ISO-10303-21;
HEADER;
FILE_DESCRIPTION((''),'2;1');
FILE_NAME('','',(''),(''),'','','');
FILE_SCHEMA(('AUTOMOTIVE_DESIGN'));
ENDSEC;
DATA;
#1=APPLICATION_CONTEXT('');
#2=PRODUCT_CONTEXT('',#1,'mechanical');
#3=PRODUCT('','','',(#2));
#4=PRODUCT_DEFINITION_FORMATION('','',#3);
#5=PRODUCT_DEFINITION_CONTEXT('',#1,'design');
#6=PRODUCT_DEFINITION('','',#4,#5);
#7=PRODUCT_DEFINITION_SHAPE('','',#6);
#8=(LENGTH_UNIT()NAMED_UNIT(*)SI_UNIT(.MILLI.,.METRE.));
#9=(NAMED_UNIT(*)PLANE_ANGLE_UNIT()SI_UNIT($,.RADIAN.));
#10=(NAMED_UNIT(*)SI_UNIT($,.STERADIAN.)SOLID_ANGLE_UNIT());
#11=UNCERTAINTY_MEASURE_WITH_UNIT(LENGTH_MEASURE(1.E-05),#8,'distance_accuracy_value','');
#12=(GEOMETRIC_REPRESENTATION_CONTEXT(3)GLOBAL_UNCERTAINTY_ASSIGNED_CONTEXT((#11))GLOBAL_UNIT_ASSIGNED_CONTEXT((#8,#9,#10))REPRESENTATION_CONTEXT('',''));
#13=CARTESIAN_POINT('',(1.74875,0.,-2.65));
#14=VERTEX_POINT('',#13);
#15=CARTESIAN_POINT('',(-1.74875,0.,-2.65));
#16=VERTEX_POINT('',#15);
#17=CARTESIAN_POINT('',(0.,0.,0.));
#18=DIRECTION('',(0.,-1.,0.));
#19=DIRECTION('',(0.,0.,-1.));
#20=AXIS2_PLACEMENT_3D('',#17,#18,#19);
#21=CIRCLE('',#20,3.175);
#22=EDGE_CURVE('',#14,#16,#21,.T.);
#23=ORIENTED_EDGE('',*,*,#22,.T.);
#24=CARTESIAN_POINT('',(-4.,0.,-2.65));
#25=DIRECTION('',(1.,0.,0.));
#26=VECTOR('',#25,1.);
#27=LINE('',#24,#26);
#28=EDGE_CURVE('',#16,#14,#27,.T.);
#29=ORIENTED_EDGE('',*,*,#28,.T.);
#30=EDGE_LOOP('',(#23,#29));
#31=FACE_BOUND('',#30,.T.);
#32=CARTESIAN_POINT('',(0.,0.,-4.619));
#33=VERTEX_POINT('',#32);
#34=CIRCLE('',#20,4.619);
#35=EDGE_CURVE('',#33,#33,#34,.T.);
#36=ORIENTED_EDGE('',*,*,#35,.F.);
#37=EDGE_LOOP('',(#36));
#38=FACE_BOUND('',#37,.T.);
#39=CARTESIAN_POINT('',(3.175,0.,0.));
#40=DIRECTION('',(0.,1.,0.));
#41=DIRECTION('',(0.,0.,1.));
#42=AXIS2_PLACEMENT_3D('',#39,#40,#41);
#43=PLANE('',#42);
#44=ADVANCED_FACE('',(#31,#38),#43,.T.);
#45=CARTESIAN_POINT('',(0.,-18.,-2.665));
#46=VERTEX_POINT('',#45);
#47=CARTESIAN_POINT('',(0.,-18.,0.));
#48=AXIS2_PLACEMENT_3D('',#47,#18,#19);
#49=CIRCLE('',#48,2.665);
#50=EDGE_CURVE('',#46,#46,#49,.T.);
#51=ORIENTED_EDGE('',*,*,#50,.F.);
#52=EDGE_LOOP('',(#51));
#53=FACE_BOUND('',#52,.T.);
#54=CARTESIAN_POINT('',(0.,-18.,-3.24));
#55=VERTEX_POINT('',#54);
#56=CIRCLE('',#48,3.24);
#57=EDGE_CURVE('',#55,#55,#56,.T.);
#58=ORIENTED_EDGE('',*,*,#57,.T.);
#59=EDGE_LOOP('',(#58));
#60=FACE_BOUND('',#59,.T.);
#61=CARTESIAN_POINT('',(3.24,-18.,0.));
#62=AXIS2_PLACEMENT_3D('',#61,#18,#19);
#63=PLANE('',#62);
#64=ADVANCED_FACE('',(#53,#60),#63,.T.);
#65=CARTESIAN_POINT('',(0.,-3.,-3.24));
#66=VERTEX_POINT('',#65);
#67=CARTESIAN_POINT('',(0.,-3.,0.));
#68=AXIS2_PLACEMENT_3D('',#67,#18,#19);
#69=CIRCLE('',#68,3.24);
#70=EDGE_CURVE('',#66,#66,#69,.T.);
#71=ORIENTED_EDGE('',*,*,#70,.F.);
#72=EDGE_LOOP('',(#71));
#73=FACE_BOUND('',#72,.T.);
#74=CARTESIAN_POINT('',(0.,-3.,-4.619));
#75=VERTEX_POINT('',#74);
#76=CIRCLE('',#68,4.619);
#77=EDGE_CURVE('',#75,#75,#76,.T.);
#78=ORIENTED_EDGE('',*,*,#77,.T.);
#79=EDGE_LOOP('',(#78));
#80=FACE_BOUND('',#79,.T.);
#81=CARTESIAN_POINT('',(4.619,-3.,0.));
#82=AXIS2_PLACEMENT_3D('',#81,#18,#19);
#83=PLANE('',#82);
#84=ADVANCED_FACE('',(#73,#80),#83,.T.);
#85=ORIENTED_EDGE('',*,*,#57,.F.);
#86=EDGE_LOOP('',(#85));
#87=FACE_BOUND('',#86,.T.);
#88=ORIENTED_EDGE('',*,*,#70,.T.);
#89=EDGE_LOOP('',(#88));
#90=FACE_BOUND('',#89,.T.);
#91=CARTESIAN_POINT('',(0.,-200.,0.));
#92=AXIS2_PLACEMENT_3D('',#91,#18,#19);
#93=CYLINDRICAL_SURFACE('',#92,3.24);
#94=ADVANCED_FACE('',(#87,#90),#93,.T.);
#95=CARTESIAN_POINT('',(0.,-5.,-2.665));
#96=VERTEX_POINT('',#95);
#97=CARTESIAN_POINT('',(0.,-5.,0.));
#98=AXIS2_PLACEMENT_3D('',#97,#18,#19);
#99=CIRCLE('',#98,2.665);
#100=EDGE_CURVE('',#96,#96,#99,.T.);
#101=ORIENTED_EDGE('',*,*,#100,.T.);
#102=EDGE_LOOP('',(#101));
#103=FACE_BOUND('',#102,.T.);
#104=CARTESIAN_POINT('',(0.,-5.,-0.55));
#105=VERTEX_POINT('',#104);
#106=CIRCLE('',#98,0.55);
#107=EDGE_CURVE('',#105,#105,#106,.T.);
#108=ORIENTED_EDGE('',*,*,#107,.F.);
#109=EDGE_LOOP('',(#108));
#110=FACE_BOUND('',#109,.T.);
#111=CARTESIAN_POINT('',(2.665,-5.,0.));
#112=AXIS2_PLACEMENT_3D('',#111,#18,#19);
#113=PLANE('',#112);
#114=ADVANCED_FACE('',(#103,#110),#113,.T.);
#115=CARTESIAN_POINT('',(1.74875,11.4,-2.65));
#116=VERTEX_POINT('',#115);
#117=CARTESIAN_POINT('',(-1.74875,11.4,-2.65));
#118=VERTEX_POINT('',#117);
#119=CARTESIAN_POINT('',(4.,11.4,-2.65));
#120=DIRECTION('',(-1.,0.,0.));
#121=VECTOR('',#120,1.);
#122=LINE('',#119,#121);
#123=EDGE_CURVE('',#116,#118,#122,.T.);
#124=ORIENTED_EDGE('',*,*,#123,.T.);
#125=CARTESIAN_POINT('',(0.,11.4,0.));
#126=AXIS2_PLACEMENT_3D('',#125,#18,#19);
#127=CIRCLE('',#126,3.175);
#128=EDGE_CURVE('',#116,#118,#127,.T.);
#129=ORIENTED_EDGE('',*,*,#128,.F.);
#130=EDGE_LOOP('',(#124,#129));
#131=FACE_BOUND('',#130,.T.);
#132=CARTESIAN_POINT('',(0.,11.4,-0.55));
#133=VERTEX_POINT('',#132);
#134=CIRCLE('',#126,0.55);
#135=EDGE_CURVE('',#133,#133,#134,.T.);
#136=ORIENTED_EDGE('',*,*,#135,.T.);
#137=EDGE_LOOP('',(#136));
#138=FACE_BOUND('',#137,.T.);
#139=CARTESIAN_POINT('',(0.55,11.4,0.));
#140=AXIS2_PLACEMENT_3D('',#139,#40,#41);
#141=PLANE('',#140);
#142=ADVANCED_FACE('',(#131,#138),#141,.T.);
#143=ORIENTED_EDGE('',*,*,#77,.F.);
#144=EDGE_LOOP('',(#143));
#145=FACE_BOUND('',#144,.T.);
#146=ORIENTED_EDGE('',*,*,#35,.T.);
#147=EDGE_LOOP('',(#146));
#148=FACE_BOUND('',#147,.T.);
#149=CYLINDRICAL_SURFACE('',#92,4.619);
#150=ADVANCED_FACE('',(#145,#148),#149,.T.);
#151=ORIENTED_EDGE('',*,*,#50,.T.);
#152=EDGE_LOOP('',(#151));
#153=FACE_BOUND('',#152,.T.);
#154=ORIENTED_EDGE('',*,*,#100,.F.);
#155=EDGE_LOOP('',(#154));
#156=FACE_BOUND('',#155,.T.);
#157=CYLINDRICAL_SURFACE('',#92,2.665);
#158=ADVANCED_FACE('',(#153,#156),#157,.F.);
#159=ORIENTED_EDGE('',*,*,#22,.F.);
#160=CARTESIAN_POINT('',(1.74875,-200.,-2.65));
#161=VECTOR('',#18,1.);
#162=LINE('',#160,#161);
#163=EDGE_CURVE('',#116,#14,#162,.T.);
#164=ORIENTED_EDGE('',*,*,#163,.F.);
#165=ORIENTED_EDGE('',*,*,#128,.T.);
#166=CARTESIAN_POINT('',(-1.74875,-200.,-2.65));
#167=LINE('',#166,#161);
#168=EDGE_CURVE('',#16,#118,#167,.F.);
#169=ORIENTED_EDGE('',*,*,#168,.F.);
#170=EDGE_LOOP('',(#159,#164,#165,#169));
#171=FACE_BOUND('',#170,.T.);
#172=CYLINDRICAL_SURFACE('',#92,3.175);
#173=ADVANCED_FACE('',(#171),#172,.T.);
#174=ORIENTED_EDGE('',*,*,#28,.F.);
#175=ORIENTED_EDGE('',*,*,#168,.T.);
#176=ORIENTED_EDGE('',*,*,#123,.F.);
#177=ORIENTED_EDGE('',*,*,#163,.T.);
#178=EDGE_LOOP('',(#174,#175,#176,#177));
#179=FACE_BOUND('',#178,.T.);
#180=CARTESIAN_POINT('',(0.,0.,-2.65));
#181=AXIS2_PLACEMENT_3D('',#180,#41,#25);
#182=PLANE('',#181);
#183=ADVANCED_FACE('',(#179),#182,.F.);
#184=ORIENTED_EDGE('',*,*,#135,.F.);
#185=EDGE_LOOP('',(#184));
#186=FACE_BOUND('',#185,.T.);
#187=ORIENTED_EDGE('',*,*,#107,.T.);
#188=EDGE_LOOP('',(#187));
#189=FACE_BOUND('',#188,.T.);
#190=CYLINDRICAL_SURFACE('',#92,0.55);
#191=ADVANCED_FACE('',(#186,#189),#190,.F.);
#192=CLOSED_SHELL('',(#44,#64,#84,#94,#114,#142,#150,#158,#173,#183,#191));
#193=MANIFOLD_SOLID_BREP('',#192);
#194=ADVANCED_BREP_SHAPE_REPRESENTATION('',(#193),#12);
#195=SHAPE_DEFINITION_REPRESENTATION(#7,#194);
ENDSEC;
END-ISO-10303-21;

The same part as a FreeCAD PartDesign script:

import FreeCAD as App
import Part
import Sketcher
Q = App.Units.Quantity


def add_polygon(sketch, points):
    """Adds a closed chain of lines whose ends are joined by coincident constraints."""
    first, n = sketch.GeometryCount, len(points)
    for a, b in zip(points, points[1:] + points[:1]):
        sketch.addGeometry(Part.LineSegment(App.Vector(*a, 0), App.Vector(*b, 0)), False)
    for i in range(n):
        sketch.addConstraint(Sketcher.Constraint("Coincident", first + i, 2, first + (i + 1) % n, 1))

doc = App.newDocument("Part")
body = doc.addObject("PartDesign::Body", "Body")

sketch1 = doc.addObject("Sketcher::SketchObject", "Sketch")
body.addObject(sketch1)
sketch1.AttachmentSupport = (doc.XY_Plane, [""])
sketch1.MapMode = "FlatFace"
add_polygon(sketch1, [(2.665, -5), (2.665, -18), (3.24, -18), (3.24, -3), (4.619, -3), (4.619, 0), (3.175, 0), (3.175, 11.4), (0.55, 11.4), (0.55, -5)])
sketch1.addConstraint([
    Sketcher.Constraint("Vertical", 0),
    Sketcher.Constraint("Horizontal", 1),
    Sketcher.Constraint("Vertical", 2),
    Sketcher.Constraint("Horizontal", 3),
    Sketcher.Constraint("Vertical", 4),
    Sketcher.Constraint("Horizontal", 5),
    Sketcher.Constraint("Vertical", 6),
    Sketcher.Constraint("Horizontal", 7),
    Sketcher.Constraint("Vertical", 8),
    Sketcher.Constraint("Horizontal", 9),
    Sketcher.Constraint("PointOnObject", 4, 2, -1),
    Sketcher.Constraint("DistanceY", 0, 2, 0, 1, Q("13 mm")),
    Sketcher.Constraint("DistanceY", 2, 1, 2, 2, Q("15 mm")),
    Sketcher.Constraint("DistanceY", 4, 1, 4, 2, Q("3 mm")),
    Sketcher.Constraint("DistanceY", 6, 1, 6, 2, Q("11.4 mm")),
    Sketcher.Constraint("DistanceX", 1, 1, 1, 2, Q("0.575 mm")),
    Sketcher.Constraint("DistanceX", 3, 1, 3, 2, Q("1.379 mm")),
    Sketcher.Constraint("DistanceX", 5, 2, 5, 1, Q("1.444 mm")),
    Sketcher.Constraint("DistanceX", 7, 2, 7, 1, Q("2.625 mm")),
    Sketcher.Constraint("DistanceX", -1, 1, 1, 2, Q("3.24 mm")),
])
revolution = doc.addObject("PartDesign::Revolution", "Revolution")
body.addObject(revolution)
revolution.Profile = sketch1
revolution.ReferenceAxis = (sketch1, ["V_Axis"])
revolution.Angle = 360

sketch2 = doc.addObject("Sketcher::SketchObject", "Sketch001")
body.addObject(sketch2)
sketch2.AttachmentSupport = (doc.XY_Plane, [""])
sketch2.MapMode = "FlatFace"
sketch2.AttachmentOffset = App.Placement(App.Vector(0, 0, -2.65), App.Rotation())
add_polygon(sketch2, [(-4, 11.4), (-4, 0), (4, 0), (4, 11.4)])
sketch2.addConstraint([
    Sketcher.Constraint("Vertical", 0),
    Sketcher.Constraint("Horizontal", 1),
    Sketcher.Constraint("Vertical", 2),
    Sketcher.Constraint("Horizontal", 3),
    Sketcher.Constraint("Symmetric", 0, 2, 1, 2, -1, 1),
    Sketcher.Constraint("DistanceX", 1, 1, 1, 2, Q("8 mm")),
    Sketcher.Constraint("DistanceY", 0, 2, 0, 1, Q("11.4 mm")),
])
pocket1 = doc.addObject("PartDesign::Pocket", "Pocket")
body.addObject(pocket1)
pocket1.Profile = sketch2
pocket1.Length = 20

doc.recompute()
